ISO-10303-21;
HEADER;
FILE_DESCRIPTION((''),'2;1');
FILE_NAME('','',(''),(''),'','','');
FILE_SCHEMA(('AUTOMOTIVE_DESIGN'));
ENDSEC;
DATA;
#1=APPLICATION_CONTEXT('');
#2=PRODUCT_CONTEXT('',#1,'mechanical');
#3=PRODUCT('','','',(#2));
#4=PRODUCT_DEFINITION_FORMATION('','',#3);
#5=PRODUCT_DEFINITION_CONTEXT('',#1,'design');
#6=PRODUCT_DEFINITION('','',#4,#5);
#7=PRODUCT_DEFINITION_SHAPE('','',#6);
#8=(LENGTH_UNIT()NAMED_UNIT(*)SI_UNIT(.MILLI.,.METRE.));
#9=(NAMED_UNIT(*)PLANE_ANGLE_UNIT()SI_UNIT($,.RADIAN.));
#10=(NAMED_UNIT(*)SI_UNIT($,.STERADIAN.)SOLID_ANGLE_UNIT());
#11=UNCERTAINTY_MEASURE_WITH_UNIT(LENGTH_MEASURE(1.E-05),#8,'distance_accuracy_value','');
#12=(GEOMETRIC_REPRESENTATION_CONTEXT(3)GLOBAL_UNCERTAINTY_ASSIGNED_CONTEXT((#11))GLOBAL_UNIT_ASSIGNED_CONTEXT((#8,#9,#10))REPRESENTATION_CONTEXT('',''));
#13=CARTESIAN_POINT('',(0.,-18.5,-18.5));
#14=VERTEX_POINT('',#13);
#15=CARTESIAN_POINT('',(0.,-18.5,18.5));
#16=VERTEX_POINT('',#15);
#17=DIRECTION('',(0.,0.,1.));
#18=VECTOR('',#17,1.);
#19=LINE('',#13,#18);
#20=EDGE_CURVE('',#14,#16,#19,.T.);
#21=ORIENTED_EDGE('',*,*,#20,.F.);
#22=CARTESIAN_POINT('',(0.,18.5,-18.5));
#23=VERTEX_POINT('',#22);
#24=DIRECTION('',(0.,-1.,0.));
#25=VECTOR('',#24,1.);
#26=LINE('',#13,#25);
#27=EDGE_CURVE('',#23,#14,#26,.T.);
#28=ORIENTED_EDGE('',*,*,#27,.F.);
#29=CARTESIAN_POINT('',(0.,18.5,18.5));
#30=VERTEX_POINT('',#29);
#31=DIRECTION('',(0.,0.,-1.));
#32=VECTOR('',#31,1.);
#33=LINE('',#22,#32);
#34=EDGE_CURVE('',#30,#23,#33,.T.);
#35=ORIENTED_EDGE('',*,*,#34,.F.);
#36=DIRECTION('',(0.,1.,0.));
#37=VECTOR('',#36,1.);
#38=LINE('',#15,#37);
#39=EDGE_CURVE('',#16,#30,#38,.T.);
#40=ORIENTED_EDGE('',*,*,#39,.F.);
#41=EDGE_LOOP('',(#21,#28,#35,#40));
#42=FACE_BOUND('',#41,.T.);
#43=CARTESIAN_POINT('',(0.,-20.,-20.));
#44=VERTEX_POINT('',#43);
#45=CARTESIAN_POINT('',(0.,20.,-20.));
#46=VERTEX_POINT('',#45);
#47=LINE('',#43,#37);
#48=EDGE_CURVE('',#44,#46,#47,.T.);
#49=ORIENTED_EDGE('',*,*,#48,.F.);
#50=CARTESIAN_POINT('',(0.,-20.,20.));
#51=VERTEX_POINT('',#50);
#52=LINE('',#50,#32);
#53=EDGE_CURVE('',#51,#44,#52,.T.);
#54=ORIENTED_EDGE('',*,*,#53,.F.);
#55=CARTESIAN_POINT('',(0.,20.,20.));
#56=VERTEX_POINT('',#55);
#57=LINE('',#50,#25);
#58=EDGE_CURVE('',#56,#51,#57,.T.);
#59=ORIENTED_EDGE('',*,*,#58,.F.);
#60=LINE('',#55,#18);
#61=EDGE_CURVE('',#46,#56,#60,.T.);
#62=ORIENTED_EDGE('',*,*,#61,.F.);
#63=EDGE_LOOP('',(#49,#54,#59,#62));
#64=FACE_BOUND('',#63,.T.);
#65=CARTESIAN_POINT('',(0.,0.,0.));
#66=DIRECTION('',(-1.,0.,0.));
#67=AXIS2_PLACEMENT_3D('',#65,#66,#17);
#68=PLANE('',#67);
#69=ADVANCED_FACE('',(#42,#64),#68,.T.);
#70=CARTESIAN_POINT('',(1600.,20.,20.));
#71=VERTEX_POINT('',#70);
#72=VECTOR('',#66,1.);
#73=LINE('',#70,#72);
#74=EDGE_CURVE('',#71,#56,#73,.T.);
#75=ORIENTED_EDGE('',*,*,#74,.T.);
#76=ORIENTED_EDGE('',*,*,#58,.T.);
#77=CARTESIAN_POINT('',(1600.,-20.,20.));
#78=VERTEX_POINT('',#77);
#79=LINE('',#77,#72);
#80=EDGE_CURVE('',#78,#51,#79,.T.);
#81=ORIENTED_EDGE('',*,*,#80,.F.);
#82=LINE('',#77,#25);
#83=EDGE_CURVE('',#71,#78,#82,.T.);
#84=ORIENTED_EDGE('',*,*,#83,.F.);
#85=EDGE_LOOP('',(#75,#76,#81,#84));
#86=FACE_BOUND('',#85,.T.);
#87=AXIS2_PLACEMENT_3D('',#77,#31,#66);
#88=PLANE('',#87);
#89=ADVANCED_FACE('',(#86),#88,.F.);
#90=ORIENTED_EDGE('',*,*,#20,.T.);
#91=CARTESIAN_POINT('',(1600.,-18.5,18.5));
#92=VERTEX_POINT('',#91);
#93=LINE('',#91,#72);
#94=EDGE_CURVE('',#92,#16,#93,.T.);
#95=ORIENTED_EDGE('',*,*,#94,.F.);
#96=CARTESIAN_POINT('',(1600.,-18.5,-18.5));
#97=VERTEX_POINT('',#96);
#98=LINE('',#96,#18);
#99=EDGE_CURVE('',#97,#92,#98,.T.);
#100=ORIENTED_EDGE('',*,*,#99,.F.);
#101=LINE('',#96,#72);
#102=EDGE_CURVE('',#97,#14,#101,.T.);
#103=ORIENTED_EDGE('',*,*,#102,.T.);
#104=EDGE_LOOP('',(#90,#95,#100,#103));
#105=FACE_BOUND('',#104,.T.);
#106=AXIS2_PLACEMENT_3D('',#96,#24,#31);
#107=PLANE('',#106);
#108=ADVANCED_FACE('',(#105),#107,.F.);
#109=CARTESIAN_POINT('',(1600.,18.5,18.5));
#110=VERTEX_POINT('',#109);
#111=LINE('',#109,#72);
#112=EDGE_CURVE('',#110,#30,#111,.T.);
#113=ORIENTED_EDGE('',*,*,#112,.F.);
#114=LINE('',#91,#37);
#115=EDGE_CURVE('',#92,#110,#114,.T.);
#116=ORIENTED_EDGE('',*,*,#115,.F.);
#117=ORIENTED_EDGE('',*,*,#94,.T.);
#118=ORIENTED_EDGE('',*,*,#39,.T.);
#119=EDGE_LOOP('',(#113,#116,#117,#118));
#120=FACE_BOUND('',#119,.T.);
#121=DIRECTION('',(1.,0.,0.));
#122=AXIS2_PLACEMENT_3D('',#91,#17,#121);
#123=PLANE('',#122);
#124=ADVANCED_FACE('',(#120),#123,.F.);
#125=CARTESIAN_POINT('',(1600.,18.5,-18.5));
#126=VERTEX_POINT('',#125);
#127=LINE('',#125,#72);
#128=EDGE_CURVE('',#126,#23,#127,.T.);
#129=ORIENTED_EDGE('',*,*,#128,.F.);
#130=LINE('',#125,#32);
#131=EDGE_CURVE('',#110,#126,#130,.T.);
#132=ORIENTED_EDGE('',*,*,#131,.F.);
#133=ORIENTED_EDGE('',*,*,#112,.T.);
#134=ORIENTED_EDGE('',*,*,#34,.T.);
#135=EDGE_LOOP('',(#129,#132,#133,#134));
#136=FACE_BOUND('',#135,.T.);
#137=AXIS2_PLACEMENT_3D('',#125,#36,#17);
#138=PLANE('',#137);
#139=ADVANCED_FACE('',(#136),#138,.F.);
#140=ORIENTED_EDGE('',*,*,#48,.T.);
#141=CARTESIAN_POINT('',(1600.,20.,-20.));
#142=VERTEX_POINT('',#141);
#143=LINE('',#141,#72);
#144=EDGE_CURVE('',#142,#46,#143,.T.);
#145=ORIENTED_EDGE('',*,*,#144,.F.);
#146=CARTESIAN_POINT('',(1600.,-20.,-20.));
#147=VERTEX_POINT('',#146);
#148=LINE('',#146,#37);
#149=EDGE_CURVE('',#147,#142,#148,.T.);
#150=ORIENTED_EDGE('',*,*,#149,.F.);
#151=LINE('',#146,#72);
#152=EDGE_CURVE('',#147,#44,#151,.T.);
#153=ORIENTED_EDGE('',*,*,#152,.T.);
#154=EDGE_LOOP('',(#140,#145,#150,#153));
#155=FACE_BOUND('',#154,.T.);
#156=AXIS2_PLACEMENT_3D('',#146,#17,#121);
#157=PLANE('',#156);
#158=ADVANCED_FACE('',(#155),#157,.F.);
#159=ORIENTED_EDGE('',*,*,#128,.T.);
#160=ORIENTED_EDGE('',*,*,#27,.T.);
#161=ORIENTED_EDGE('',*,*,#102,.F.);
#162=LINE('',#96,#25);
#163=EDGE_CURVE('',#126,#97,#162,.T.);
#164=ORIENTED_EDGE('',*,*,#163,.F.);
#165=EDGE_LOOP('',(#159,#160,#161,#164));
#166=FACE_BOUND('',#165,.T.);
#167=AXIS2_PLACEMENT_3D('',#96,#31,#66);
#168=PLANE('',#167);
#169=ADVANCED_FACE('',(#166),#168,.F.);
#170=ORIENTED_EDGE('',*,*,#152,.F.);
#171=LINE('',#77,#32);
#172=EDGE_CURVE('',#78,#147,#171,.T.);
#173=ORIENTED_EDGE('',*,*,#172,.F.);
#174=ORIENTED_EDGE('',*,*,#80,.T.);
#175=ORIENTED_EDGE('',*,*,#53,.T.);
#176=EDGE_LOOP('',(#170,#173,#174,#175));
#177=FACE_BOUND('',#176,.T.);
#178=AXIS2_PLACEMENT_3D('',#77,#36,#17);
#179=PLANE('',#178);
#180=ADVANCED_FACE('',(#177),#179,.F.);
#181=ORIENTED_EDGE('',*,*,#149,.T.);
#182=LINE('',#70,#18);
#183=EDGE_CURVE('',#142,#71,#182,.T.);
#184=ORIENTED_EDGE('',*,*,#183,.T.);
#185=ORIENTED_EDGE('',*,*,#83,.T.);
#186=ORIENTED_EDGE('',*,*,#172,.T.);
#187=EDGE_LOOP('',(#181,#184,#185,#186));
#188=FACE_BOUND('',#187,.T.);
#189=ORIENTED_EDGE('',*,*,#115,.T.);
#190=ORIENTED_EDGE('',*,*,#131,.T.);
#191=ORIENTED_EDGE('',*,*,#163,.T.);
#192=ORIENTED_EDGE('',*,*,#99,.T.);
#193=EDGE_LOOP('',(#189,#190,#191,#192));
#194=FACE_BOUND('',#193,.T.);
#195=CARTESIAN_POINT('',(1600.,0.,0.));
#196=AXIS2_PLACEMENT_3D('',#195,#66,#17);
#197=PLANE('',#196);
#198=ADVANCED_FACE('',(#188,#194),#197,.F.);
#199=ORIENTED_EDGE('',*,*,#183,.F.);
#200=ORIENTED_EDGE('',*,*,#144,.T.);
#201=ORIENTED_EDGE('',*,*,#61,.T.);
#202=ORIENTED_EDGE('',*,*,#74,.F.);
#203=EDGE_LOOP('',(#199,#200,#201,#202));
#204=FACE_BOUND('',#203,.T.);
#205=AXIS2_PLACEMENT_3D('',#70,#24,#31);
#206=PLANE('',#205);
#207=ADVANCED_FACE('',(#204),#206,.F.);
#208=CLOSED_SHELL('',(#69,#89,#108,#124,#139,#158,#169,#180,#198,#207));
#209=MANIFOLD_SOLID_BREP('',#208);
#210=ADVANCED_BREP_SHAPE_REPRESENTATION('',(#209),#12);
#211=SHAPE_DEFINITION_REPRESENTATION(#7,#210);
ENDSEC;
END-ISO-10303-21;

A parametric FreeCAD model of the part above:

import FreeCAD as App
import Part
import Sketcher

doc = App.newDocument("Part")
body = doc.addObject("PartDesign::Body", "Body")

# Sketch on YZ plane
sketch1 = body.newObject("Sketcher::SketchObject", "Sketch")
sketch1.AttachmentSupport = (doc.getObject("YZ_Plane"), [""])
sketch1.MapMode = "FlatFace"
sketch1.addGeometry([
    Part.LineSegment(App.Vector(20, 20, 0), App.Vector(-20, 20, 0)),
    Part.LineSegment(App.Vector(-20, 20, 0), App.Vector(-20, -20, 0)),
    Part.LineSegment(App.Vector(-20, -20, 0), App.Vector(20, -20, 0)),
    Part.LineSegment(App.Vector(20, -20, 0), App.Vector(20, 20, 0)),
], False)
sketch1.addConstraint([
    Sketcher.Constraint("Coincident", 0, 2, 1, 1),
    Sketcher.Constraint("Coincident", 1, 2, 2, 1),
    Sketcher.Constraint("Coincident", 2, 2, 3, 1),
    Sketcher.Constraint("Coincident", 3, 2, 0, 1),
    Sketcher.Constraint("Horizontal", 0),
    Sketcher.Constraint("Vertical", 1),
    Sketcher.Constraint("Horizontal", 2),
    Sketcher.Constraint("Vertical", 3),
    Sketcher.Constraint("Symmetric", 0, 2, 2, 2, -1, 1),
    Sketcher.Constraint("Equal", 2, 1),
    Sketcher.Constraint("DistanceX", 0, 2, 0, 1, 40.0),
])
pad1 = body.newObject("PartDesign::Pad", "Pad")
pad1.Profile = sketch1
pad1.Length = 1600

# Sketch on YZ plane
sketch2 = body.newObject("Sketcher::SketchObject", "Sketch001")
sketch2.AttachmentSupport = (doc.getObject("YZ_Plane"), [""])
sketch2.MapMode = "FlatFace"
sketch2.addGeometry([
    Part.LineSegment(App.Vector(18.5, -18.5, 0), App.Vector(-18.5, -18.5, 0)),
    Part.LineSegment(App.Vector(-18.5, -18.5, 0), App.Vector(-18.5, 18.5, 0)),
    Part.LineSegment(App.Vector(-18.5, 18.5, 0), App.Vector(18.5, 18.5, 0)),
    Part.LineSegment(App.Vector(18.5, 18.5, 0), App.Vector(18.5, -18.5, 0)),
], False)
sketch2.addConstraint([
    Sketcher.Constraint("Coincident", 0, 2, 1, 1),
    Sketcher.Constraint("Coincident", 1, 2, 2, 1),
    Sketcher.Constraint("Coincident", 2, 2, 3, 1),
    Sketcher.Constraint("Coincident", 3, 2, 0, 1),
    Sketcher.Constraint("Horizontal", 0),
    Sketcher.Constraint("Vertical", 1),
    Sketcher.Constraint("Horizontal", 2),
    Sketcher.Constraint("Vertical", 3),
    Sketcher.Constraint("Symmetric", 0, 2, 2, 2, -1, 1),
    Sketcher.Constraint("Equal", 2, 1),
    Sketcher.Constraint("DistanceX", 0, 2, 0, 1, 37.0),
])
pocket1 = body.newObject("PartDesign::Pocket", "Pocket")
pocket1.Profile = sketch2
pocket1.Type = "ThroughAll"
pocket1.Reversed = True

doc.recompute()
